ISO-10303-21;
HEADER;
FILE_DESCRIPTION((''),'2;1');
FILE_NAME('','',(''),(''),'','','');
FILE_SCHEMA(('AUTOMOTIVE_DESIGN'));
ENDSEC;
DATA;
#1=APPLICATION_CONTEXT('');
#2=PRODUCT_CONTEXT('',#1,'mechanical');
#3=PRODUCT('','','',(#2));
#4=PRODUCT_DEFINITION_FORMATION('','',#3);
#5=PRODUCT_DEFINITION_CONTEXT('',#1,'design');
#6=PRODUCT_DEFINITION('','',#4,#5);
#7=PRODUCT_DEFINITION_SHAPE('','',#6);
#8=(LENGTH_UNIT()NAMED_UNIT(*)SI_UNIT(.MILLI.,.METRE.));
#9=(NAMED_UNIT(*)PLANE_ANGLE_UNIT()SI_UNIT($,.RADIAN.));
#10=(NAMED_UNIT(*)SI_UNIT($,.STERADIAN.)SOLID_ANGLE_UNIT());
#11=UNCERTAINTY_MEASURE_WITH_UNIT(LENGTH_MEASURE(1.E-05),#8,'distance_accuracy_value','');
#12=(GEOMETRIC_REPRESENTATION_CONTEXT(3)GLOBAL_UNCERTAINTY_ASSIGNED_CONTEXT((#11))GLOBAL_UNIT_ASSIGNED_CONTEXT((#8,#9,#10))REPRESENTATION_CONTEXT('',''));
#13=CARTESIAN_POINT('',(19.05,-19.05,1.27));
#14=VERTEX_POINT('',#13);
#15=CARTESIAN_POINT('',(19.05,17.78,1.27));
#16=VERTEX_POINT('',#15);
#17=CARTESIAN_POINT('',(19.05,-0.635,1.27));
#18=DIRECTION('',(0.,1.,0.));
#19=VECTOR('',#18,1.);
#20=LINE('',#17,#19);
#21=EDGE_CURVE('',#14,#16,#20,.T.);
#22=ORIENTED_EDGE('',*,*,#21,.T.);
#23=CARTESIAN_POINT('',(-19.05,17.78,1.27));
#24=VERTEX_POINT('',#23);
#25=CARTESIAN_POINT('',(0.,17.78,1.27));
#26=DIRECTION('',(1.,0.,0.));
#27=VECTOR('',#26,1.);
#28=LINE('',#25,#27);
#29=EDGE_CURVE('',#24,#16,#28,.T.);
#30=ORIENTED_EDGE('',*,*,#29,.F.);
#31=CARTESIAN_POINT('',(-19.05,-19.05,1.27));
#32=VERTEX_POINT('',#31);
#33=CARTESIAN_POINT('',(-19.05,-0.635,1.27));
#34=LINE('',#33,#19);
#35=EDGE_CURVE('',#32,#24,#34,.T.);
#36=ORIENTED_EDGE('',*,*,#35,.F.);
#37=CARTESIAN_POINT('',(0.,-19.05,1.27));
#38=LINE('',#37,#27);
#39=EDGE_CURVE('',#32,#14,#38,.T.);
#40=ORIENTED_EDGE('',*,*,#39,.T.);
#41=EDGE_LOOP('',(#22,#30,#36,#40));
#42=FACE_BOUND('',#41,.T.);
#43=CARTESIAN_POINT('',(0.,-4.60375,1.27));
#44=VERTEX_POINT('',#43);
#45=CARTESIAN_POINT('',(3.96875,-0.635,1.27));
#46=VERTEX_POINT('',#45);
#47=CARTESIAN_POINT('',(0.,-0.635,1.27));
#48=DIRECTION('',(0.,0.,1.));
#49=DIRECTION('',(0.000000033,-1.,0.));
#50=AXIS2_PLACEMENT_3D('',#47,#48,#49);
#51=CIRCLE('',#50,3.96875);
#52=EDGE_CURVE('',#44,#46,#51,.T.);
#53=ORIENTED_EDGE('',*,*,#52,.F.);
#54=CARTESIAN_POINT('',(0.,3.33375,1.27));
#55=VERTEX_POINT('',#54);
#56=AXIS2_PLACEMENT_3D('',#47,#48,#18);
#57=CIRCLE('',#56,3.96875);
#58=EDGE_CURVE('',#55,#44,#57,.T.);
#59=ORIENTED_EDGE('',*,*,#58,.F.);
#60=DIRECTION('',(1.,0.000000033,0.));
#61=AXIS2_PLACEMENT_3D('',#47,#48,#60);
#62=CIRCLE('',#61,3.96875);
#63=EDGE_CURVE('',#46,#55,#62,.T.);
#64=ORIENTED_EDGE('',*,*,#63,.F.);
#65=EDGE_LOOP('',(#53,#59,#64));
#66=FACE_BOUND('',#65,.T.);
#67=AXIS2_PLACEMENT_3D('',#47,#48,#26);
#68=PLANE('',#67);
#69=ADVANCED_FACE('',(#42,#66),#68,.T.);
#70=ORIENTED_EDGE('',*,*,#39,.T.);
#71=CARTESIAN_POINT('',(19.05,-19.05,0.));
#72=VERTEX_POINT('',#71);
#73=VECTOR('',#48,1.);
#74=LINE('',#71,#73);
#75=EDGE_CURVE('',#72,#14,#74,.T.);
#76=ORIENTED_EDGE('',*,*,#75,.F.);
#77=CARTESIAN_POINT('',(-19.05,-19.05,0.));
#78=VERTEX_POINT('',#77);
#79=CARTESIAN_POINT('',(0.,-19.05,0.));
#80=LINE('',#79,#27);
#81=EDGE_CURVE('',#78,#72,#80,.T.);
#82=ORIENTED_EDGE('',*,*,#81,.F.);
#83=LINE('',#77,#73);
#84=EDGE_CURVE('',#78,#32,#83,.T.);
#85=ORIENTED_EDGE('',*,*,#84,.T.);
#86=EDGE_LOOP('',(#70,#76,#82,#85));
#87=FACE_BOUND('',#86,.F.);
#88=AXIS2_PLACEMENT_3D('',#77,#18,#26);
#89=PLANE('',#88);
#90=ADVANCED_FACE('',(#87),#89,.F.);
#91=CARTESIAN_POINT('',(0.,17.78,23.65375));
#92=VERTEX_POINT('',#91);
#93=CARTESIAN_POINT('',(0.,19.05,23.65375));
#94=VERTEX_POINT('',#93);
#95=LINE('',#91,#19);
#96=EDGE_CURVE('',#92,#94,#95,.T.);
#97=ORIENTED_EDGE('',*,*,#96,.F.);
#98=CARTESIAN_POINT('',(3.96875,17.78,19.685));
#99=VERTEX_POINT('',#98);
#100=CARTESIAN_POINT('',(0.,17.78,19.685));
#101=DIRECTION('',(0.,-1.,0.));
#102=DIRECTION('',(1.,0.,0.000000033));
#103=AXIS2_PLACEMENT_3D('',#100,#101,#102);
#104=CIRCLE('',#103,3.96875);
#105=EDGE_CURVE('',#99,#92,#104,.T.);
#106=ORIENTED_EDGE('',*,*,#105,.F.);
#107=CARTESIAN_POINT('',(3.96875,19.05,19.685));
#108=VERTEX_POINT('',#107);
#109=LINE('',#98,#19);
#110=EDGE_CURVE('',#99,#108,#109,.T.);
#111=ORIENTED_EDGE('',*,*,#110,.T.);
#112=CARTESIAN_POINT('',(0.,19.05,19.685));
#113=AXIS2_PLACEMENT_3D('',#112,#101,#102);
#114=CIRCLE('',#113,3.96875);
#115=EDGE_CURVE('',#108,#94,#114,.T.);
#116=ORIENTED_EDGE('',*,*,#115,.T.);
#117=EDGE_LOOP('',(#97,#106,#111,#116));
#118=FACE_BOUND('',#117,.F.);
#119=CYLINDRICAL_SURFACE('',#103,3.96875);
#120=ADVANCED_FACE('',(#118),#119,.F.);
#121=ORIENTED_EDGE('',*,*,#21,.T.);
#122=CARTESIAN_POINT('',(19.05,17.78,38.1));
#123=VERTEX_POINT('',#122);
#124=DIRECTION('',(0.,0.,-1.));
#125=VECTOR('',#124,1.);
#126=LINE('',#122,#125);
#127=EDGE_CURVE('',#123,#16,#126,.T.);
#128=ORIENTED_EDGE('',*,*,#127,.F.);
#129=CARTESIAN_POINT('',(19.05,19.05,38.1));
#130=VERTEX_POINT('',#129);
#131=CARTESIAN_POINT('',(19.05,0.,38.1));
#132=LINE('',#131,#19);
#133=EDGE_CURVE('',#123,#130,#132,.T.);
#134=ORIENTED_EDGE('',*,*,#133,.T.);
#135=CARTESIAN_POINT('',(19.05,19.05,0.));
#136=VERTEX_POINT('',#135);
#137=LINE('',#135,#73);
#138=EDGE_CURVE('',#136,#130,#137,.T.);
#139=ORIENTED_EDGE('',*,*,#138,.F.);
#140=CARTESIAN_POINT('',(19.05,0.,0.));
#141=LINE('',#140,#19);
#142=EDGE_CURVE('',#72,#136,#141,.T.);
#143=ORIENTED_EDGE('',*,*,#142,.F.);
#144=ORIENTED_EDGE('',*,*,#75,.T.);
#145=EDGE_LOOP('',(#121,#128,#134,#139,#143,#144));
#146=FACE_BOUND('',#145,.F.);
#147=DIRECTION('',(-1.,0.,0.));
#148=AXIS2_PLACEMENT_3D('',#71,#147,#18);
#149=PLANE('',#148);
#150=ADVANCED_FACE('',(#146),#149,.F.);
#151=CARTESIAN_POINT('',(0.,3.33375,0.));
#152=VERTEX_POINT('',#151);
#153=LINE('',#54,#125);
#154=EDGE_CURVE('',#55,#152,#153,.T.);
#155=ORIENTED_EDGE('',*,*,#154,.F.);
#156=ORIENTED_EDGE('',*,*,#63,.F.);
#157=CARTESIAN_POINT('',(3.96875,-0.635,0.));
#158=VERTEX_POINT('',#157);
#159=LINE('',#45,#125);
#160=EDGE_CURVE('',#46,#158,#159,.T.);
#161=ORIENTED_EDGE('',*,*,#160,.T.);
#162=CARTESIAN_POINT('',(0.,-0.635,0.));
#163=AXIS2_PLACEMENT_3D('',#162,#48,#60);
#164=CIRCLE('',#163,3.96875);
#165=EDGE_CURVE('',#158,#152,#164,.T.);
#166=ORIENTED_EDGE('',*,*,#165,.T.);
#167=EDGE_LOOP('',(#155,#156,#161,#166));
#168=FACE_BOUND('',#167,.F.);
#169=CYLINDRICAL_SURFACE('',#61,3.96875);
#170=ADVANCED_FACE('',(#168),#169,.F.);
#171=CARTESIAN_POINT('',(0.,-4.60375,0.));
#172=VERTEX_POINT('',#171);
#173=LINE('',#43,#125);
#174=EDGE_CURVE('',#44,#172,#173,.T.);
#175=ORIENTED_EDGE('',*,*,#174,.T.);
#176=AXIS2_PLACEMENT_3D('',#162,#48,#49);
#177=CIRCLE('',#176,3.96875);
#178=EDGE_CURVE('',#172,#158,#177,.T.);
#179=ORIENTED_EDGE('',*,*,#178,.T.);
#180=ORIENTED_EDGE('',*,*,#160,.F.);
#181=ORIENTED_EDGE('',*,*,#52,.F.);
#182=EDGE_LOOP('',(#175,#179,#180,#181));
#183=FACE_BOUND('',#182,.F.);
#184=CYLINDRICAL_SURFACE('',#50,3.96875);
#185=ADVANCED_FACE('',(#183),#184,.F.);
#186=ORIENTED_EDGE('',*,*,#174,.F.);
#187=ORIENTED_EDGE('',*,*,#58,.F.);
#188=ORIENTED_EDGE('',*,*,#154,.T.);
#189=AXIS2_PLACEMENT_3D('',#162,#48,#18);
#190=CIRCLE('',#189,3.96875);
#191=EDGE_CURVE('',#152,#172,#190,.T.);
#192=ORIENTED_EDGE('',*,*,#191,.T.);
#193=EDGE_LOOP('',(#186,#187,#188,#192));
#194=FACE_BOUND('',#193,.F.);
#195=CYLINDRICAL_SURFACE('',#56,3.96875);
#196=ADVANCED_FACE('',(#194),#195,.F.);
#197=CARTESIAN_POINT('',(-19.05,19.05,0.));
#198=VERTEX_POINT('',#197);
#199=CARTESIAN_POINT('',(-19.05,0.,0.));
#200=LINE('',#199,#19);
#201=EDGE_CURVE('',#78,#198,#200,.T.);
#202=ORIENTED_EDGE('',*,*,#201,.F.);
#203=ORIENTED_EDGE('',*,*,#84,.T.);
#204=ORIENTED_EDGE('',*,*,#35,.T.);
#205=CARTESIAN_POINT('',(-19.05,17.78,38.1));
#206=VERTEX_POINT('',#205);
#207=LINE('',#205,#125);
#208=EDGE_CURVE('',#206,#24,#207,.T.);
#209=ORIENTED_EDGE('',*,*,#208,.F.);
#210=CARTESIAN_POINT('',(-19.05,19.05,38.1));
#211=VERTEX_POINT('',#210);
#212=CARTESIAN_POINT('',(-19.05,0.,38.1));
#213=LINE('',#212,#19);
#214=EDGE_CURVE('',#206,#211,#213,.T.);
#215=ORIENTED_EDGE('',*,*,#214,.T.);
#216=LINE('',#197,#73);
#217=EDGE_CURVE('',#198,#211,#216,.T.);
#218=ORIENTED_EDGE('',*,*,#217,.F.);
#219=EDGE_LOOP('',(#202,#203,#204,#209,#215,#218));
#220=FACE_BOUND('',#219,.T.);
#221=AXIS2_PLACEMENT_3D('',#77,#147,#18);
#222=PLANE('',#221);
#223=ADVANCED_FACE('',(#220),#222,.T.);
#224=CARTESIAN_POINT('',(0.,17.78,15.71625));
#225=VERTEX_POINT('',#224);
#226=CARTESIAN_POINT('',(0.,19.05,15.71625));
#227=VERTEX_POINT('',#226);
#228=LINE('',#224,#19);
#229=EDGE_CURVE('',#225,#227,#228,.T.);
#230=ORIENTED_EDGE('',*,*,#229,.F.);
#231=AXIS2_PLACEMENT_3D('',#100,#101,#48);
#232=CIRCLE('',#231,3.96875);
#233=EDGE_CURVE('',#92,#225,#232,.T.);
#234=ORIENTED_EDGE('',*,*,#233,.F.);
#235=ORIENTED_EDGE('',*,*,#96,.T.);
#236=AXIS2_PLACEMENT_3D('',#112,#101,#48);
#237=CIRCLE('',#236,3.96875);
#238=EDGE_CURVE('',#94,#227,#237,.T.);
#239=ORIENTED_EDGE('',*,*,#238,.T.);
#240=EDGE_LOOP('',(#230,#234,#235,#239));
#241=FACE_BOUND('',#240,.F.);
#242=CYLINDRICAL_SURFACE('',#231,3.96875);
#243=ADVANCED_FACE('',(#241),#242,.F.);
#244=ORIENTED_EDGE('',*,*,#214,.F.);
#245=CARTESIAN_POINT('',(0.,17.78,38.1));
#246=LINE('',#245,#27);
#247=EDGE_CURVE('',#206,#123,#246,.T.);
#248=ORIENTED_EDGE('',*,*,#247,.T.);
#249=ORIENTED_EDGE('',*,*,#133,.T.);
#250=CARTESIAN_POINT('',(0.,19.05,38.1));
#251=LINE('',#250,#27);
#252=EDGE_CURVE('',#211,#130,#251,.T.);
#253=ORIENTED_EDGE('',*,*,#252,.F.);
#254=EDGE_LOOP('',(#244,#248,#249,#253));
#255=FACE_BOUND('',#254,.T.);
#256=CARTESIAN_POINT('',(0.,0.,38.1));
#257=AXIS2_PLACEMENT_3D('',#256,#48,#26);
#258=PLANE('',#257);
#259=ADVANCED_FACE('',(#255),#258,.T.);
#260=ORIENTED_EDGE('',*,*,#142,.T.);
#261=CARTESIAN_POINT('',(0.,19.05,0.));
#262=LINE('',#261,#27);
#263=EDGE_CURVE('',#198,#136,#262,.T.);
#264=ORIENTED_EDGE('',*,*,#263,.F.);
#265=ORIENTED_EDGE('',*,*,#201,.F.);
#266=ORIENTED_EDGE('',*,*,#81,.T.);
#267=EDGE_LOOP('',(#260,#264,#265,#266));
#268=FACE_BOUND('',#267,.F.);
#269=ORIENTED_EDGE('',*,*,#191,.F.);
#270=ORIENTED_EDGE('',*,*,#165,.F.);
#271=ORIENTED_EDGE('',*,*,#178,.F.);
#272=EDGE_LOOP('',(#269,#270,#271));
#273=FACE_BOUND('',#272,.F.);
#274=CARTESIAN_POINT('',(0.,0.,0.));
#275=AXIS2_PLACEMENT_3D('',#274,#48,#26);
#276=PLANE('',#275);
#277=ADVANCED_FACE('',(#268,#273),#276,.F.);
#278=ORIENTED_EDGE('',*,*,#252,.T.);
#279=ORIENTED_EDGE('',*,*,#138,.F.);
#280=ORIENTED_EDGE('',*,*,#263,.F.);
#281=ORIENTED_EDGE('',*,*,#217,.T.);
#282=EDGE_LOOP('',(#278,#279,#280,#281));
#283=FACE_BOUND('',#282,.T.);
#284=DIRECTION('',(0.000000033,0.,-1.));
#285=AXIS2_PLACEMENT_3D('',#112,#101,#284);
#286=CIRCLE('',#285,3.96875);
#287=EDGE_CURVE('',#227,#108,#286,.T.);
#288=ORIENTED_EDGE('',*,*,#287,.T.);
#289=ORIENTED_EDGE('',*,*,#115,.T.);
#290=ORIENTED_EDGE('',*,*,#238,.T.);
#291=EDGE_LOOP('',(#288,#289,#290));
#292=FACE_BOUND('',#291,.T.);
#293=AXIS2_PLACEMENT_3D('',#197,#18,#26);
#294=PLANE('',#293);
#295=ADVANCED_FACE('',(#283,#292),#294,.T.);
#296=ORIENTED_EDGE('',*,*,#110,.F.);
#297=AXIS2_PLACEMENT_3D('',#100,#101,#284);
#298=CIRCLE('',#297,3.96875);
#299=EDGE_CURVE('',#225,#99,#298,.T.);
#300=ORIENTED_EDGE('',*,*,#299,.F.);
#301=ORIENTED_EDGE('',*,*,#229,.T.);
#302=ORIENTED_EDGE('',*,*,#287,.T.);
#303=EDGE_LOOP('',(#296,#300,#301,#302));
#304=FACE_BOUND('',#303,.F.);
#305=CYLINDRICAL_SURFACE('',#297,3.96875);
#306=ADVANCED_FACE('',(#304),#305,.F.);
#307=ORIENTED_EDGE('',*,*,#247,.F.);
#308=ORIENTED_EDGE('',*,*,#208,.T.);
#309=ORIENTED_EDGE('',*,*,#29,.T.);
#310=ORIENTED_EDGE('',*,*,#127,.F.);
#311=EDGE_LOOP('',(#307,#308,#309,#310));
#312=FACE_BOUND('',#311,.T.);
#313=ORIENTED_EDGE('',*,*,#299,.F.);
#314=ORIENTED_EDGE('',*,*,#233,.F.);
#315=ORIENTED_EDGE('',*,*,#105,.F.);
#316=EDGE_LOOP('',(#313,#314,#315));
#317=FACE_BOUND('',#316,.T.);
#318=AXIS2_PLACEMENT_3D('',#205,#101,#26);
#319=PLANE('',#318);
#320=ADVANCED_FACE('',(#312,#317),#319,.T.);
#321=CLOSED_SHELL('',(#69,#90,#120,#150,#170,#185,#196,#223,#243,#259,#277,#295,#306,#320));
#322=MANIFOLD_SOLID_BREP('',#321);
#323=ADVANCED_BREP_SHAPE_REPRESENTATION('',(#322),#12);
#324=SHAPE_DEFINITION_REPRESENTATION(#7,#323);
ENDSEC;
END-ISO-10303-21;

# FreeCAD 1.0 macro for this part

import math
import FreeCAD as App
import Part
import Sketcher
Q = App.Units.Quantity

doc = App.newDocument("Part")
body = doc.addObject("PartDesign::Body", "Body")

# Sketch on XY plane
sketch1 = body.newObject("Sketcher::SketchObject", "Sketch")
sketch1.AttachmentSupport = (doc.getObject("XY_Plane"), [""])
sketch1.MapMode = "FlatFace"
sketch1.addGeometry([
    Part.LineSegment(App.Vector(-19, 19, 0), App.Vector(-19, -19, 0)),
    Part.LineSegment(App.Vector(-19, -19, 0), App.Vector(19, -19, 0)),
    Part.LineSegment(App.Vector(19, -19, 0), App.Vector(19, 19, 0)),
    Part.LineSegment(App.Vector(19, 19, 0), App.Vector(-19, 19, 0)),
], False)
sketch1.addConstraint([
    Sketcher.Constraint("Coincident", 0, 2, 1, 1),
    Sketcher.Constraint("Coincident", 1, 2, 2, 1),
    Sketcher.Constraint("Coincident", 2, 2, 3, 1),
    Sketcher.Constraint("Coincident", 3, 2, 0, 1),
    Sketcher.Constraint("Vertical", 0),
    Sketcher.Constraint("Horizontal", 1),
    Sketcher.Constraint("Vertical", 2),
    Sketcher.Constraint("Horizontal", 3),
    Sketcher.Constraint("Symmetric", 0, 2, 2, 2, -1, 1),
    Sketcher.Constraint("Equal", 3, 0),
    Sketcher.Constraint("DistanceX", 1, 1, 1, 2, Q("1.5 in")),
])
pad1 = body.newObject("PartDesign::Pad", "Pad")
pad1.Profile = sketch1
pad1.Length = Q("1.5 in")

# Sketch on XY plane
sketch2 = body.newObject("Sketcher::SketchObject", "Sketch001")
sketch2.AttachmentSupport = (doc.getObject("XY_Plane"), [""])
sketch2.MapMode = "FlatFace"
sketch2.AttachmentOffset = App.Placement(App.Vector(0, 0, 1.5 * 25.4), App.Rotation())
sketch2.addGeometry([
    Part.LineSegment(App.Vector(-19, 18, 0), App.Vector(-19, -19, 0)),
    Part.LineSegment(App.Vector(-19, -19, 0), App.Vector(19, -19, 0)),
    Part.LineSegment(App.Vector(19, -19, 0), App.Vector(19, 18, 0)),
    Part.LineSegment(App.Vector(19, 18, 0), App.Vector(-19, 18, 0)),
], False)
sketch2.addConstraint([
    Sketcher.Constraint("Coincident", 0, 2, 1, 1),
    Sketcher.Constraint("Coincident", 1, 2, 2, 1),
    Sketcher.Constraint("Coincident", 2, 2, 3, 1),
    Sketcher.Constraint("Coincident", 3, 2, 0, 1),
    Sketcher.Constraint("Vertical", 0),
    Sketcher.Constraint("Horizontal", 1),
    Sketcher.Constraint("Vertical", 2),
    Sketcher.Constraint("Horizontal", 3),
    Sketcher.Constraint("DistanceX", 1, 1, 1, 2, Q("1.5 in")),
    Sketcher.Constraint("DistanceY", 0, 2, 0, 1, Q("1.45 in")),
    Sketcher.Constraint("DistanceY", -1, 1, 2, 2, Q("0.7 in")),
    Sketcher.Constraint("DistanceX", 0, 2, -1, 1, Q("0.75 in")),
])
pocket1 = body.newObject("PartDesign::Pocket", "Pocket")
pocket1.Profile = sketch2
pocket1.Length = Q("1.45 in")

# Sketch on XZ plane
sketch3 = body.newObject("Sketcher::SketchObject", "Sketch002")
sketch3.AttachmentSupport = (doc.getObject("XZ_Plane"), [""])
sketch3.MapMode = "FlatFace"
sketch3.AttachmentOffset = App.Placement(App.Vector(0, 0, -0.7 * 25.4), App.Rotation())
sketch3.addGeometry([
    Part.ArcOfCircle(Part.Circle(App.Vector(0, 19.7, 0), App.Vector(0, 0, 1), 4), math.radians(0), math.radians(90)),
    Part.ArcOfCircle(Part.Circle(App.Vector(0, 19.7, 0), App.Vector(0, 0, 1), 4), math.radians(90), math.radians(270)),
    Part.ArcOfCircle(Part.Circle(App.Vector(0, 19.7, 0), App.Vector(0, 0, 1), 4), math.radians(-90), math.radians(0)),
], False)
sketch3.addConstraint([
    Sketcher.Constraint("Tangent", 0, 2, 1, 1),
    Sketcher.Constraint("Tangent", 1, 2, 2, 1),
    Sketcher.Constraint("Tangent", 2, 2, 0, 1),
    Sketcher.Constraint("PointOnObject", 0, 3, -2),
    Sketcher.Constraint("PointOnObject", 0, 2, -2),
    Sketcher.Constraint("PointOnObject", 1, 2, -2),
    Sketcher.Constraint("Horizontal", 1, 3, 2, 2),
    Sketcher.Constraint("Radius", 0, Q("0.15625 in")),
    Sketcher.Constraint("DistanceY", -1, 1, 0, 3, Q("0.775 in")),
])
pocket2 = body.newObject("PartDesign::Pocket", "Pocket001")
pocket2.Profile = sketch3
pocket2.Length = Q("0.15 in")

# Sketch on XY plane
sketch4 = body.newObject("Sketcher::SketchObject", "Sketch003")
sketch4.AttachmentSupport = (doc.getObject("XY_Plane"), [""])
sketch4.MapMode = "FlatFace"
sketch4.AttachmentOffset = App.Placement(App.Vector(0, 0, 0.05 * 25.4), App.Rotation())
sketch4.addGeometry([
    Part.ArcOfCircle(Part.Circle(App.Vector(0, -0.6, 0), App.Vector(0, 0, 1), 4), math.radians(0), math.radians(90)),
    Part.ArcOfCircle(Part.Circle(App.Vector(0, -0.6, 0), App.Vector(0, 0, 1), 4), math.radians(90), math.radians(270)),
    Part.ArcOfCircle(Part.Circle(App.Vector(0, -0.6, 0), App.Vector(0, 0, 1), 4), math.radians(-90), math.radians(0)),
], False)
sketch4.addConstraint([
    Sketcher.Constraint("Tangent", 0, 2, 1, 1),
    Sketcher.Constraint("Tangent", 1, 2, 2, 1),
    Sketcher.Constraint("Tangent", 2, 2, 0, 1),
    Sketcher.Constraint("PointOnObject", 0, 3, -2),
    Sketcher.Constraint("PointOnObject", 0, 2, -2),
    Sketcher.Constraint("PointOnObject", 1, 2, -2),
    Sketcher.Constraint("Horizontal", 1, 3, 2, 2),
    Sketcher.Constraint("Radius", 0, Q("0.15625 in")),
    Sketcher.Constraint("DistanceY", 0, 3, -1, 1, Q("0.025 in")),
])
pocket3 = body.newObject("PartDesign::Pocket", "Pocket002")
pocket3.Profile = sketch4
pocket3.Length = Q("0.19 in")

doc.recompute()
